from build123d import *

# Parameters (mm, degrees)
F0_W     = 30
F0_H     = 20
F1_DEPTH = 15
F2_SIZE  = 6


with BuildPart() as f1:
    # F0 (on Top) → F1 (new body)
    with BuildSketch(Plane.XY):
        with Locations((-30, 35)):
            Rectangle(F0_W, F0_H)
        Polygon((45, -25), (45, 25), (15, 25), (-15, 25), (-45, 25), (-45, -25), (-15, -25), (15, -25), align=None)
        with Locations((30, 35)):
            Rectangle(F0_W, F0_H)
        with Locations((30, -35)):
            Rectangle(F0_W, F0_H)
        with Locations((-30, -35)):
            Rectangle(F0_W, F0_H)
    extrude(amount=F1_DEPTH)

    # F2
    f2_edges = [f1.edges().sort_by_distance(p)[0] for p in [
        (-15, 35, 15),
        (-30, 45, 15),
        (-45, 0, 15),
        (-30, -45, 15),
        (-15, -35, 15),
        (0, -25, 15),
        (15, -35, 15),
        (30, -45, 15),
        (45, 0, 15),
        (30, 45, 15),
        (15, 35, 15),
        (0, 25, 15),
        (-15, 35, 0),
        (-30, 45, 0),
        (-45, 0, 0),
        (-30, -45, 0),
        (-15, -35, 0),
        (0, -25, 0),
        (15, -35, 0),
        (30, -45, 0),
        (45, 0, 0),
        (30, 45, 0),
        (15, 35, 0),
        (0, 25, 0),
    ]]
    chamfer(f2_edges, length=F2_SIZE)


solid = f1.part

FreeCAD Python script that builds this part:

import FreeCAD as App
import Part
import Sketcher

V = App.Vector
Q = App.Units.Quantity


def edges_at(feature, points):
    """Names of the edges that pass closest to the given points."""
    edges = feature.Shape.Edges
    near = lambda p: min(range(len(edges)), key=lambda i: edges[i].distToShape(Part.Vertex(*p))[0])
    return sorted({f"Edge{near(p) + 1}" for p in points})

doc = App.newDocument("Part")
params = doc.addObject("Spreadsheet::Sheet", "Params")
for row, (alias, value) in enumerate([
    ("sketch1_width", "30 mm"),
    ("sketch1_height", "90 mm"),
    ("sketch1_height2", "20 mm"),
    ("pad1_length", "15 mm"),
    ("chamfer_size", "6 mm"),
], start=1):
    params.set(f"A{row}", alias)
    params.set(f"B{row}", "=" + value)
    params.setAlias(f"B{row}", alias)

body = doc.addObject("PartDesign::Body", "Body")

# Sketch on XY plane
sketch1 = doc.addObject("Sketcher::SketchObject", "Sketch")
body.addObject(sketch1)
sketch1.AttachmentSupport = (doc.XY_Plane, [""])
sketch1.MapMode = "FlatFace"
sketch1.addGeometry(Part.LineSegment(V(-45, 45, 0), V(-45, -45, 0)), False)
sketch1.addGeometry(Part.LineSegment(V(-45, -45, 0), V(-15, -45, 0)), False)
sketch1.addGeometry(Part.LineSegment(V(-15, -45, 0), V(-15, -25, 0)), False)
sketch1.addGeometry(Part.LineSegment(V(-15, -25, 0), V(15, -25, 0)), False)
sketch1.addGeometry(Part.LineSegment(V(15, -25, 0), V(15, -45, 0)), False)
sketch1.addGeometry(Part.LineSegment(V(15, -45, 0), V(45, -45, 0)), False)
sketch1.addGeometry(Part.LineSegment(V(45, -45, 0), V(45, 45, 0)), False)
sketch1.addGeometry(Part.LineSegment(V(45, 45, 0), V(15, 45, 0)), False)
sketch1.addGeometry(Part.LineSegment(V(15, 45, 0), V(15, 25, 0)), False)
sketch1.addGeometry(Part.LineSegment(V(15, 25, 0), V(-15, 25, 0)), False)
sketch1.addGeometry(Part.LineSegment(V(-15, 25, 0), V(-15, 45, 0)), False)
sketch1.addGeometry(Part.LineSegment(V(-15, 45, 0), V(-45, 45, 0)), False)
sketch1.addConstraint(Sketcher.Constraint("Coincident", 0, 2, 1, 1))
sketch1.addConstraint(Sketcher.Constraint("Coincident", 1, 2, 2, 1))
sketch1.addConstraint(Sketcher.Constraint("Coincident", 2, 2, 3, 1))
sketch1.addConstraint(Sketcher.Constraint("Coincident", 3, 2, 4, 1))
sketch1.addConstraint(Sketcher.Constraint("Coincident", 4, 2, 5, 1))
sketch1.addConstraint(Sketcher.Constraint("Coincident", 5, 2, 6, 1))
sketch1.addConstraint(Sketcher.Constraint("Coincident", 6, 2, 7, 1))
sketch1.addConstraint(Sketcher.Constraint("Coincident", 7, 2, 8, 1))
sketch1.addConstraint(Sketcher.Constraint("Coincident", 8, 2, 9, 1))
sketch1.addConstraint(Sketcher.Constraint("Coincident", 9, 2, 10, 1))
sketch1.addConstraint(Sketcher.Constraint("Coincident", 10, 2, 11, 1))
sketch1.addConstraint(Sketcher.Constraint("Coincident", 11, 2, 0, 1))
sketch1.addConstraint(Sketcher.Constraint("Vertical", 0))
sketch1.addConstraint(Sketcher.Constraint("Horizontal", 1))
sketch1.addConstraint(Sketcher.Constraint("Vertical", 2))
sketch1.addConstraint(Sketcher.Constraint("Horizontal", 3))
sketch1.addConstraint(Sketcher.Constraint("Vertical", 4))
sketch1.addConstraint(Sketcher.Constraint("Horizontal", 5))
sketch1.addConstraint(Sketcher.Constraint("Vertical", 6))
sketch1.addConstraint(Sketcher.Constraint("Horizontal", 7))
sketch1.addConstraint(Sketcher.Constraint("Vertical", 8))
sketch1.addConstraint(Sketcher.Constraint("Horizontal", 9))
sketch1.addConstraint(Sketcher.Constraint("Vertical", 10))
sketch1.addConstraint(Sketcher.Constraint("Horizontal", 11))
sketch1.addConstraint(Sketcher.Constraint("Symmetric", 0, 2, 6, 2, -1, 1))
sketch1.addConstraint(Sketcher.Constraint("Symmetric", 2, 2, 8, 2, -1, 1))
sketch1.addConstraint(Sketcher.Constraint("Symmetric", 4, 2, 10, 2, -1, 1))
sketch1.addConstraint(Sketcher.Constraint("Symmetric", 1, 2, 4, 2, -2))
sketch1.addConstraint(Sketcher.Constraint("Equal", 1, 3))
sketch1.addConstraint(Sketcher.Constraint("DistanceX", 1, 1, 1, 2, Q("30 mm")))
sketch1.addConstraint(Sketcher.Constraint("DistanceY", 0, 2, 0, 1, Q("90 mm")))
sketch1.addConstraint(Sketcher.Constraint("DistanceY", 2, 1, 2, 2, Q("20 mm")))
sketch1.setExpression("Constraints[29]", "Params.sketch1_width")
sketch1.setExpression("Constraints[30]", "Params.sketch1_height")
sketch1.setExpression("Constraints[31]", "Params.sketch1_height2")
pad1 = doc.addObject("PartDesign::Pad", "Pad")
body.addObject(pad1)
pad1.Profile = sketch1
pad1.setExpression("Length", "Params.pad1_length")
doc.recompute()

chamfer = doc.addObject("PartDesign::Chamfer", "Chamfer")
body.addObject(chamfer)
chamfer.Base = (pad1, edges_at(pad1, [
    (-15, 35, 15),
    (-30, 45, 15),
    (-45, 0, 15),
    (-30, -45, 15),
    (-15, -35, 15),
    (0, -25, 15),
    (15, -35, 15),
    (30, -45, 15),
    (45, 0, 15),
    (30, 45, 15),
    (15, 35, 15),
    (0, 25, 15),
    (-15, 35, 0),
    (-30, 45, 0),
    (-45, 0, 0),
    (-30, -45, 0),
    (-15, -35, 0),
    (0, -25, 0),
    (15, -35, 0),
    (30, -45, 0),
    (45, 0, 0),
    (30, 45, 0),
    (15, 35, 0),
    (0, 25, 0),
]))
chamfer.setExpression("Size", "Params.chamfer_size")

doc.recompute()
